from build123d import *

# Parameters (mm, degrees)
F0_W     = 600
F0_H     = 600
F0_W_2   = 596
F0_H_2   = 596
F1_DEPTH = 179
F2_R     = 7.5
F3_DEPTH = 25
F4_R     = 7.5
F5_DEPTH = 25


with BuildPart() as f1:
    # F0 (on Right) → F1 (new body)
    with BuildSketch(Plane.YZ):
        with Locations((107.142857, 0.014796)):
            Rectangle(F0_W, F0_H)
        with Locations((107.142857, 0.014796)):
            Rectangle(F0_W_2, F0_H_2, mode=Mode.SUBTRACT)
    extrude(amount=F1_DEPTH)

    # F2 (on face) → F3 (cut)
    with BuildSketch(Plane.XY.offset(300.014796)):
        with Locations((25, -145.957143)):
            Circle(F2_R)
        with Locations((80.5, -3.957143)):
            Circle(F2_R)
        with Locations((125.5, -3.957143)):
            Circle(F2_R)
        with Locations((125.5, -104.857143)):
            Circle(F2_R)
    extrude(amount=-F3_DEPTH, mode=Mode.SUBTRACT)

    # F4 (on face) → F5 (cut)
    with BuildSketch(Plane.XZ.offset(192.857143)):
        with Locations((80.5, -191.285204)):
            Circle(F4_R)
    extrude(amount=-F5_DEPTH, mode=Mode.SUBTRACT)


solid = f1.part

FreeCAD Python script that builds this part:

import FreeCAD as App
import Part
import Sketcher
Q = App.Units.Quantity

doc = App.newDocument("Part")
body = doc.addObject("PartDesign::Body", "Body")

sketch1 = body.newObject("Sketcher::SketchObject", "Sketch")
sketch1.AttachmentSupport = (doc.getObject("YZ_Plane"), [""])
sketch1.MapMode = "FlatFace"
sketch1.addGeometry(Part.LineSegment(App.Vector(-193, 300, 0), App.Vector(-193, -300, 0)), False)
sketch1.addGeometry(Part.LineSegment(App.Vector(-193, -300, 0), App.Vector(407, -300, 0)), False)
sketch1.addGeometry(Part.LineSegment(App.Vector(407, -300, 0), App.Vector(407, 300, 0)), False)
sketch1.addGeometry(Part.LineSegment(App.Vector(407, 300, 0), App.Vector(-193, 300, 0)), False)
sketch1.addGeometry(Part.LineSegment(App.Vector(405, -298, 0), App.Vector(-191, -298, 0)), False)
sketch1.addGeometry(Part.LineSegment(App.Vector(-191, -298, 0), App.Vector(-191, 298, 0)), False)
sketch1.addGeometry(Part.LineSegment(App.Vector(-191, 298, 0), App.Vector(405, 298, 0)), False)
sketch1.addGeometry(Part.LineSegment(App.Vector(405, 298, 0), App.Vector(405, -298, 0)), False)
sketch1.addConstraint(Sketcher.Constraint("Coincident", 0, 2, 1, 1))
sketch1.addConstraint(Sketcher.Constraint("Coincident", 1, 2, 2, 1))
sketch1.addConstraint(Sketcher.Constraint("Coincident", 2, 2, 3, 1))
sketch1.addConstraint(Sketcher.Constraint("Coincident", 3, 2, 0, 1))
sketch1.addConstraint(Sketcher.Constraint("Coincident", 4, 2, 5, 1))
sketch1.addConstraint(Sketcher.Constraint("Coincident", 5, 2, 6, 1))
sketch1.addConstraint(Sketcher.Constraint("Coincident", 6, 2, 7, 1))
sketch1.addConstraint(Sketcher.Constraint("Coincident", 7, 2, 4, 1))
sketch1.addConstraint(Sketcher.Constraint("Vertical", 0))
sketch1.addConstraint(Sketcher.Constraint("Horizontal", 1))
sketch1.addConstraint(Sketcher.Constraint("Vertical", 2))
sketch1.addConstraint(Sketcher.Constraint("Horizontal", 3))
sketch1.addConstraint(Sketcher.Constraint("Horizontal", 4))
sketch1.addConstraint(Sketcher.Constraint("Vertical", 5))
sketch1.addConstraint(Sketcher.Constraint("Horizontal", 6))
sketch1.addConstraint(Sketcher.Constraint("Vertical", 7))
sketch1.addConstraint(Sketcher.Constraint("Equal", 3, 0))
sketch1.addConstraint(Sketcher.Constraint("Equal", 6, 5))
sketch1.addConstraint(Sketcher.Constraint("DistanceX", 1, 1, 1, 2, Q("600 mm")))
sketch1.addConstraint(Sketcher.Constraint("DistanceX", 4, 2, 4, 1, Q("596 mm")))
sketch1.addConstraint(Sketcher.Constraint("DistanceX", 0, 2, 4, 2, Q("2 mm")))
sketch1.addConstraint(Sketcher.Constraint("DistanceY", 0, 2, 4, 2, Q("2 mm")))
sketch1.addConstraint(Sketcher.Constraint("DistanceX", 0, 2, -1, 1, Q("192.857143 mm")))
sketch1.addConstraint(Sketcher.Constraint("DistanceY", 0, 2, -1, 1, Q("299.985204 mm")))
pad1 = body.newObject("PartDesign::Pad", "Pad")
pad1.Profile = sketch1
pad1.Length = 179

sketch2 = body.newObject("Sketcher::SketchObject", "Sketch001")
sketch2.AttachmentSupport = (doc.getObject("XY_Plane"), [""])
sketch2.MapMode = "FlatFace"
sketch2.AttachmentOffset = App.Placement(App.Vector(0, 0, 300.014796), App.Rotation())
sketch2.addGeometry(Part.Circle(App.Vector(25, -146, 0), App.Vector(0, 0, 1), 8), False)
sketch2.addGeometry(Part.Circle(App.Vector(80, -4, 0), App.Vector(0, 0, 1), 8), False)
sketch2.addGeometry(Part.Circle(App.Vector(126, -4, 0), App.Vector(0, 0, 1), 8), False)
sketch2.addGeometry(Part.Circle(App.Vector(126, -105, 0), App.Vector(0, 0, 1), 8), False)
sketch2.addConstraint(Sketcher.Constraint("Equal", 0, 1))
sketch2.addConstraint(Sketcher.Constraint("Equal", 1, 2))
sketch2.addConstraint(Sketcher.Constraint("Equal", 2, 3))
sketch2.addConstraint(Sketcher.Constraint("Horizontal", 1, 3, 2, 3))
sketch2.addConstraint(Sketcher.Constraint("Vertical", 2, 3, 3, 3))
sketch2.addConstraint(Sketcher.Constraint("Diameter", 0, Q("15 mm")))
sketch2.addConstraint(Sketcher.Constraint("DistanceX", -1, 1, 0, 3, Q("25 mm")))
sketch2.addConstraint(Sketcher.Constraint("DistanceY", 0, 3, 1, 3, Q("142 mm")))
sketch2.addConstraint(Sketcher.Constraint("DistanceX", 1, 3, 2, 3, Q("45 mm")))
sketch2.addConstraint(Sketcher.Constraint("DistanceX", -1, 1, 1, 3, Q("80.5 mm")))
sketch2.addConstraint(Sketcher.Constraint("DistanceY", 3, 3, 2, 3, Q("100.9 mm")))
sketch2.addConstraint(Sketcher.Constraint("DistanceY", 0, 3, -1, 1, Q("145.957143 mm")))
pocket1 = body.newObject("PartDesign::Pocket", "Pocket")
pocket1.Profile = sketch2
pocket1.Length = 25

sketch3 = body.newObject("Sketcher::SketchObject", "Sketch002")
sketch3.AttachmentSupport = (doc.getObject("XZ_Plane"), [""])
sketch3.MapMode = "FlatFace"
sketch3.AttachmentOffset = App.Placement(App.Vector(0, 0, 192.857143), App.Rotation())
sketch3.addGeometry(Part.Circle(App.Vector(80, -191, 0), App.Vector(0, 0, 1), 8), False)
sketch3.addConstraint(Sketcher.Constraint("Diameter", 0, Q("15 mm")))
sketch3.addConstraint(Sketcher.Constraint("DistanceX", -1, 1, 0, 3, Q("80.5 mm")))
sketch3.addConstraint(Sketcher.Constraint("DistanceY", 0, 3, -1, 1, Q("191.285204 mm")))
pocket2 = body.newObject("PartDesign::Pocket", "Pocket001")
pocket2.Profile = sketch3
pocket2.Length = 25

doc.recompute()
